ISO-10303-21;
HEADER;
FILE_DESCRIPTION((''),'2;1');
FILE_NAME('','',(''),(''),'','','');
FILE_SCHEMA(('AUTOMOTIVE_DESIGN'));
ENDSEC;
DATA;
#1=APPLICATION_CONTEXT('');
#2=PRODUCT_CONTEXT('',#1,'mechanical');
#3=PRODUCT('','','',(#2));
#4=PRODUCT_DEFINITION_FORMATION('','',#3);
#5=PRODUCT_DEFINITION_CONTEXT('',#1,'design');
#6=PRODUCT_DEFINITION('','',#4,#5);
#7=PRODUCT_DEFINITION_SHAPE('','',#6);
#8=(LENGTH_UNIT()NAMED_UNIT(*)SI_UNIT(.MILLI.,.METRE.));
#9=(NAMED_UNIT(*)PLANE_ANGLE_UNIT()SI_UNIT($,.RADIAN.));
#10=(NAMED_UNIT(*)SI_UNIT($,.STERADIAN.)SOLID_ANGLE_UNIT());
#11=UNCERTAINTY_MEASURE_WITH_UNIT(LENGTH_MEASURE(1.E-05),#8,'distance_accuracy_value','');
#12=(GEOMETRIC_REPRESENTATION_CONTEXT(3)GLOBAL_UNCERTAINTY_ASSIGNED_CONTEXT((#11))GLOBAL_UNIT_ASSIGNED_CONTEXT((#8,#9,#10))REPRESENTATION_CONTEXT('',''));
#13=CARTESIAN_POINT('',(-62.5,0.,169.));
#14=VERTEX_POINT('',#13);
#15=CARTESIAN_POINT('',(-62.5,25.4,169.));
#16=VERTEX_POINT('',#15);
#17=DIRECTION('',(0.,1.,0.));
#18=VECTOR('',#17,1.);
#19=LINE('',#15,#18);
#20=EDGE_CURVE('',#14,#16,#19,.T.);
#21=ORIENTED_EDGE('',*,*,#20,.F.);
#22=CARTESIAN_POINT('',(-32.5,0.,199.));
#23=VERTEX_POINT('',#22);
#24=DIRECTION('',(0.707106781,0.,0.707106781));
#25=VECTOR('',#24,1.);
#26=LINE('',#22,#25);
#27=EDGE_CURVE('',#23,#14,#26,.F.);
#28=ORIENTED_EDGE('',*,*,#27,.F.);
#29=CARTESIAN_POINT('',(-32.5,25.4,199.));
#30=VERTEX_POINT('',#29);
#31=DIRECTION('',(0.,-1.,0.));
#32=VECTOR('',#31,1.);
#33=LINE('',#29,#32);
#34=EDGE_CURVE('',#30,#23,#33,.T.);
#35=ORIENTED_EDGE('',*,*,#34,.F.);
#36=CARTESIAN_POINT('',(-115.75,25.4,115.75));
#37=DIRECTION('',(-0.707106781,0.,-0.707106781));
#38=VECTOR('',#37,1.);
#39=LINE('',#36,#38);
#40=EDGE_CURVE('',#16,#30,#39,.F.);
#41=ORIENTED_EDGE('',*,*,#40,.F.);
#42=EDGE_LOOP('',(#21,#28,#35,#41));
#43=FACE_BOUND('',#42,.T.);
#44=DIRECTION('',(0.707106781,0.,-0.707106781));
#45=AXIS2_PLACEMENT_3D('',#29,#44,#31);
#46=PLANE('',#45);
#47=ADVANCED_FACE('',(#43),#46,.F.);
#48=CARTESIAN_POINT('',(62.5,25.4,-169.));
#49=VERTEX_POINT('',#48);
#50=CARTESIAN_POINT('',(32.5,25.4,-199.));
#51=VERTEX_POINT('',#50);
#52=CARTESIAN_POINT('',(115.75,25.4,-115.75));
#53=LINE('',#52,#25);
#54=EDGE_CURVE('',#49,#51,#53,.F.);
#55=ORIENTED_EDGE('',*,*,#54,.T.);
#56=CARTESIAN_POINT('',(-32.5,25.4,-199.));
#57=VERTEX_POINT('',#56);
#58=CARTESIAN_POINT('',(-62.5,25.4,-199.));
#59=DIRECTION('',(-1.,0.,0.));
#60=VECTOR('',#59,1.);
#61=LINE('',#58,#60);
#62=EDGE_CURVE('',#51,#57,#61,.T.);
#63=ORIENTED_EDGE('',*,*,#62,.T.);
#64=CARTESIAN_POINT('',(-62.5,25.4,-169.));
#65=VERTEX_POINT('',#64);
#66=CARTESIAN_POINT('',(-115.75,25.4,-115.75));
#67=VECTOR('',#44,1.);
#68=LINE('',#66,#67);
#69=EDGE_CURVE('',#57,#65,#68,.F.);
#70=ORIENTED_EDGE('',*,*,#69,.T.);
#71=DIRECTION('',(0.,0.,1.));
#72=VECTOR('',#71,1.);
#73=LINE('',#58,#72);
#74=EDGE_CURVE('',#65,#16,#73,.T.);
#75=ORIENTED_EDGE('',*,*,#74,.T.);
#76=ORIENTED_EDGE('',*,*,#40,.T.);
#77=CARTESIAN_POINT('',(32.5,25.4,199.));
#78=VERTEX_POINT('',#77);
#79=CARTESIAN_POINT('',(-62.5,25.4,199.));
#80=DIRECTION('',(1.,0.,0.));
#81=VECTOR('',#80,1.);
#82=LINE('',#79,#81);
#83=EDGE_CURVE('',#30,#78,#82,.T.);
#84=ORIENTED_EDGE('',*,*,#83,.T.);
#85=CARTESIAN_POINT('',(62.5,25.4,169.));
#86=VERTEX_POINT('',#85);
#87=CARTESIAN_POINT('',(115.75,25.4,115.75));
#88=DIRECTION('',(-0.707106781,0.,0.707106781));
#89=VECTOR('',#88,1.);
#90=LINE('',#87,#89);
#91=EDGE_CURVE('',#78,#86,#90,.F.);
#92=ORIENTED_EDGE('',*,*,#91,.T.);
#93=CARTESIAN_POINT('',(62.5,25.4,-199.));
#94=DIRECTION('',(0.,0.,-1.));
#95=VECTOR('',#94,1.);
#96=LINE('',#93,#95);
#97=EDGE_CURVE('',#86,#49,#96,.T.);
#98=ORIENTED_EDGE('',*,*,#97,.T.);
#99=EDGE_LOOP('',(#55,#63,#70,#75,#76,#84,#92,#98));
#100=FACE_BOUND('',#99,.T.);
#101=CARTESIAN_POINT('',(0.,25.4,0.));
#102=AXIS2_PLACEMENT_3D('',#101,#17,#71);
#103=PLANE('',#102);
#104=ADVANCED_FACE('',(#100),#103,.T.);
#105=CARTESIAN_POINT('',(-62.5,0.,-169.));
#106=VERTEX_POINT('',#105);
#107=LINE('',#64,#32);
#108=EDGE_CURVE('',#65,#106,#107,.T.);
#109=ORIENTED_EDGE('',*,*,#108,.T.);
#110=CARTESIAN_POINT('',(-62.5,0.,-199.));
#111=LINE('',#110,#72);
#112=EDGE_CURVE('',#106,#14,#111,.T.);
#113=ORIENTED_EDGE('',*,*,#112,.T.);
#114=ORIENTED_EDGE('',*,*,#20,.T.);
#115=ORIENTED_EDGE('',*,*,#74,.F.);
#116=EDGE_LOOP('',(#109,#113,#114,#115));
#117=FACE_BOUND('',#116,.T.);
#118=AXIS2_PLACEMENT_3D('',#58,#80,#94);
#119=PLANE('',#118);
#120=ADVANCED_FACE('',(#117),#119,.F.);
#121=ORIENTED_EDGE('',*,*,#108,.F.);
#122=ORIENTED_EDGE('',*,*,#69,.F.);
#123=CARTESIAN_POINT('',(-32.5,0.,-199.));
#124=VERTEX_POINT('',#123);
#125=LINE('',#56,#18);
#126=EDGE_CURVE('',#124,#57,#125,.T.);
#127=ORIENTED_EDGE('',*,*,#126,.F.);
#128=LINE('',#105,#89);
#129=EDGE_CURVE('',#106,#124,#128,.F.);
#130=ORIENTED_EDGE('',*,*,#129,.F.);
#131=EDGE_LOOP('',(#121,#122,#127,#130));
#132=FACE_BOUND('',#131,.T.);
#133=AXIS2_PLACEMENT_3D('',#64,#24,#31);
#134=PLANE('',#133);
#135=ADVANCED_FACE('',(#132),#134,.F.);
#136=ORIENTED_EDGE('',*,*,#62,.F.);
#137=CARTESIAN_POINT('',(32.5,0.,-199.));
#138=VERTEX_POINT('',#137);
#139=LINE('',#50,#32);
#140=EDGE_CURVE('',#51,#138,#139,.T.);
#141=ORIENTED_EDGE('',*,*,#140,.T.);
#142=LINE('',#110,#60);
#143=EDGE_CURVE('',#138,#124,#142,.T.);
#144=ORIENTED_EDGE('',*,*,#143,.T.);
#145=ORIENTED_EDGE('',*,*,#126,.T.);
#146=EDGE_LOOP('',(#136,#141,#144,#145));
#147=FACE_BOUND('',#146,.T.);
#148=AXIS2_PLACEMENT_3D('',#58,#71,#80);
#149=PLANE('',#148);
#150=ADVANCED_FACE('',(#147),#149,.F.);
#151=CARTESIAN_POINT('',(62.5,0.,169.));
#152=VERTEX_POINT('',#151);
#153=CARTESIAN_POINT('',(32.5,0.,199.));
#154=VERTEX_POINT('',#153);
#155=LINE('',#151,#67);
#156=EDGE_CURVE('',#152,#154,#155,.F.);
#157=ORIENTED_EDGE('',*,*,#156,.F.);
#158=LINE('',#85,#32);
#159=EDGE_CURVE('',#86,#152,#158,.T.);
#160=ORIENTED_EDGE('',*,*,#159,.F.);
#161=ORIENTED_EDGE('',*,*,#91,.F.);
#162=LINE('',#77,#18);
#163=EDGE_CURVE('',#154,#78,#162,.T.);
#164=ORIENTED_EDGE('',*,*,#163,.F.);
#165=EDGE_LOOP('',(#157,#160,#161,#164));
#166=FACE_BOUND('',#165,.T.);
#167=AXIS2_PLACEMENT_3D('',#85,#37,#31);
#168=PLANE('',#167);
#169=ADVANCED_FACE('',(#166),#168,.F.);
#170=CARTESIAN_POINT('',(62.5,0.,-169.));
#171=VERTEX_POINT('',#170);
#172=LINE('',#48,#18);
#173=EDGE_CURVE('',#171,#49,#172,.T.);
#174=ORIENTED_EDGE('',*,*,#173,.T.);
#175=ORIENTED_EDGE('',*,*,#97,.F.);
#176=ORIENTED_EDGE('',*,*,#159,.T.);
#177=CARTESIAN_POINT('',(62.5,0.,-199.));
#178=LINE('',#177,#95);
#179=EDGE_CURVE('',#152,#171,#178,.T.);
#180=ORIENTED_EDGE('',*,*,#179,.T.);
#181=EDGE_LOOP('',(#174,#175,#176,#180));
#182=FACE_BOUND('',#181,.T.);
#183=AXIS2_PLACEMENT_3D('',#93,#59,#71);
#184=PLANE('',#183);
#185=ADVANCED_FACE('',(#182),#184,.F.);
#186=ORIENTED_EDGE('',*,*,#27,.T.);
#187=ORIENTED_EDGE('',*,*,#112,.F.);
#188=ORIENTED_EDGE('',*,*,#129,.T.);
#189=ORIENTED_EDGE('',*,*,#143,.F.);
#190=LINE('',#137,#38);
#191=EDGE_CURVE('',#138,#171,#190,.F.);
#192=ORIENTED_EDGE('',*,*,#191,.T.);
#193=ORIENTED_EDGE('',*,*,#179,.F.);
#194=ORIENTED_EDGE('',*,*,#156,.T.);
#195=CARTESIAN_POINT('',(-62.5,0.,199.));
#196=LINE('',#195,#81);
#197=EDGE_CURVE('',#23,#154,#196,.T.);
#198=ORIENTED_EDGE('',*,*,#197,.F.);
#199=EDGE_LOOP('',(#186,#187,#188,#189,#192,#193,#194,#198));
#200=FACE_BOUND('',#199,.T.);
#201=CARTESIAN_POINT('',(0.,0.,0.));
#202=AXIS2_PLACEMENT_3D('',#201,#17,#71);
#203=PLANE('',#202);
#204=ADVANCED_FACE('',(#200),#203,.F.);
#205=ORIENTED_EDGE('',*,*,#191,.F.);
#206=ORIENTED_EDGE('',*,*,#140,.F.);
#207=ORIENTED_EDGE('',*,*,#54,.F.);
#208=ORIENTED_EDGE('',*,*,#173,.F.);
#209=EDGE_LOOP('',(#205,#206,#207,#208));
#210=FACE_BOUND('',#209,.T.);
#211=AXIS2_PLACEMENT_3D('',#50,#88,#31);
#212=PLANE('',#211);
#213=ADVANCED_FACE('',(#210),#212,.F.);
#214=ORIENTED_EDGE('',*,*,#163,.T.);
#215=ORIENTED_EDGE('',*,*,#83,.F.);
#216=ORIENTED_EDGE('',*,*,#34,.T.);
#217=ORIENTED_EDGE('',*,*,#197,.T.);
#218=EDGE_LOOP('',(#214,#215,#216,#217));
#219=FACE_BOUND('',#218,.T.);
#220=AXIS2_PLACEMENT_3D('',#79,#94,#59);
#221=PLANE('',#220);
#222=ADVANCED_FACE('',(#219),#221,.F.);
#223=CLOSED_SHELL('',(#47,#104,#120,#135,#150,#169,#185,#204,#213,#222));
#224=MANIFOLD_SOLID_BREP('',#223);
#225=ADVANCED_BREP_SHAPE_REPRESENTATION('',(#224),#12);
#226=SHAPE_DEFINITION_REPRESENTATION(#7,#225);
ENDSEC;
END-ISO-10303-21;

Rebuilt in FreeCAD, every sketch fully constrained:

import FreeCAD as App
import Part
import Sketcher
Q = App.Units.Quantity


def edges_at(feature, points):
    """Names of the edges that pass closest to the given points."""
    edges = feature.Shape.Edges
    near = lambda p: min(range(len(edges)), key=lambda i: edges[i].distToShape(Part.Vertex(*p))[0])
    return sorted({f"Edge{near(p) + 1}" for p in points})

doc = App.newDocument("Part")
body = doc.addObject("PartDesign::Body", "Body")

# Sketch on XZ plane
sketch1 = body.newObject("Sketcher::SketchObject", "Sketch")
sketch1.AttachmentSupport = (doc.getObject("XZ_Plane"), [""])
sketch1.MapMode = "FlatFace"
sketch1.addGeometry(Part.LineSegment(App.Vector(-62, -199, 0), App.Vector(-62, 199, 0)), False)
sketch1.addGeometry(Part.LineSegment(App.Vector(-62, 199, 0), App.Vector(62, 199, 0)), False)
sketch1.addGeometry(Part.LineSegment(App.Vector(62, 199, 0), App.Vector(62, -199, 0)), False)
sketch1.addGeometry(Part.LineSegment(App.Vector(62, -199, 0), App.Vector(-62, -199, 0)), False)
sketch1.addConstraint(Sketcher.Constraint("Coincident", 0, 2, 1, 1))
sketch1.addConstraint(Sketcher.Constraint("Coincident", 1, 2, 2, 1))
sketch1.addConstraint(Sketcher.Constraint("Coincident", 2, 2, 3, 1))
sketch1.addConstraint(Sketcher.Constraint("Coincident", 3, 2, 0, 1))
sketch1.addConstraint(Sketcher.Constraint("Vertical", 0))
sketch1.addConstraint(Sketcher.Constraint("Horizontal", 1))
sketch1.addConstraint(Sketcher.Constraint("Vertical", 2))
sketch1.addConstraint(Sketcher.Constraint("Horizontal", 3))
sketch1.addConstraint(Sketcher.Constraint("Symmetric", 0, 2, 2, 2, -1, 1))
sketch1.addConstraint(Sketcher.Constraint("DistanceX", 1, 1, 1, 2, Q("125 mm")))
sketch1.addConstraint(Sketcher.Constraint("DistanceY", 0, 1, 0, 2, Q("398 mm")))
pad1 = body.newObject("PartDesign::Pad", "Pad")
pad1.Profile = sketch1
pad1.Length = 25.4
pad1.Reversed = True
doc.recompute()

chamfer = body.newObject("PartDesign::Chamfer", "Chamfer")
chamfer.Base = (pad1, edges_at(pad1, [
    (62.5, 12.7, 199),
    (-62.5, 12.7, 199),
    (-62.5, 12.7, -199),
    (62.5, 12.7, -199),
]))
chamfer.Size = 30

doc.recompute()
